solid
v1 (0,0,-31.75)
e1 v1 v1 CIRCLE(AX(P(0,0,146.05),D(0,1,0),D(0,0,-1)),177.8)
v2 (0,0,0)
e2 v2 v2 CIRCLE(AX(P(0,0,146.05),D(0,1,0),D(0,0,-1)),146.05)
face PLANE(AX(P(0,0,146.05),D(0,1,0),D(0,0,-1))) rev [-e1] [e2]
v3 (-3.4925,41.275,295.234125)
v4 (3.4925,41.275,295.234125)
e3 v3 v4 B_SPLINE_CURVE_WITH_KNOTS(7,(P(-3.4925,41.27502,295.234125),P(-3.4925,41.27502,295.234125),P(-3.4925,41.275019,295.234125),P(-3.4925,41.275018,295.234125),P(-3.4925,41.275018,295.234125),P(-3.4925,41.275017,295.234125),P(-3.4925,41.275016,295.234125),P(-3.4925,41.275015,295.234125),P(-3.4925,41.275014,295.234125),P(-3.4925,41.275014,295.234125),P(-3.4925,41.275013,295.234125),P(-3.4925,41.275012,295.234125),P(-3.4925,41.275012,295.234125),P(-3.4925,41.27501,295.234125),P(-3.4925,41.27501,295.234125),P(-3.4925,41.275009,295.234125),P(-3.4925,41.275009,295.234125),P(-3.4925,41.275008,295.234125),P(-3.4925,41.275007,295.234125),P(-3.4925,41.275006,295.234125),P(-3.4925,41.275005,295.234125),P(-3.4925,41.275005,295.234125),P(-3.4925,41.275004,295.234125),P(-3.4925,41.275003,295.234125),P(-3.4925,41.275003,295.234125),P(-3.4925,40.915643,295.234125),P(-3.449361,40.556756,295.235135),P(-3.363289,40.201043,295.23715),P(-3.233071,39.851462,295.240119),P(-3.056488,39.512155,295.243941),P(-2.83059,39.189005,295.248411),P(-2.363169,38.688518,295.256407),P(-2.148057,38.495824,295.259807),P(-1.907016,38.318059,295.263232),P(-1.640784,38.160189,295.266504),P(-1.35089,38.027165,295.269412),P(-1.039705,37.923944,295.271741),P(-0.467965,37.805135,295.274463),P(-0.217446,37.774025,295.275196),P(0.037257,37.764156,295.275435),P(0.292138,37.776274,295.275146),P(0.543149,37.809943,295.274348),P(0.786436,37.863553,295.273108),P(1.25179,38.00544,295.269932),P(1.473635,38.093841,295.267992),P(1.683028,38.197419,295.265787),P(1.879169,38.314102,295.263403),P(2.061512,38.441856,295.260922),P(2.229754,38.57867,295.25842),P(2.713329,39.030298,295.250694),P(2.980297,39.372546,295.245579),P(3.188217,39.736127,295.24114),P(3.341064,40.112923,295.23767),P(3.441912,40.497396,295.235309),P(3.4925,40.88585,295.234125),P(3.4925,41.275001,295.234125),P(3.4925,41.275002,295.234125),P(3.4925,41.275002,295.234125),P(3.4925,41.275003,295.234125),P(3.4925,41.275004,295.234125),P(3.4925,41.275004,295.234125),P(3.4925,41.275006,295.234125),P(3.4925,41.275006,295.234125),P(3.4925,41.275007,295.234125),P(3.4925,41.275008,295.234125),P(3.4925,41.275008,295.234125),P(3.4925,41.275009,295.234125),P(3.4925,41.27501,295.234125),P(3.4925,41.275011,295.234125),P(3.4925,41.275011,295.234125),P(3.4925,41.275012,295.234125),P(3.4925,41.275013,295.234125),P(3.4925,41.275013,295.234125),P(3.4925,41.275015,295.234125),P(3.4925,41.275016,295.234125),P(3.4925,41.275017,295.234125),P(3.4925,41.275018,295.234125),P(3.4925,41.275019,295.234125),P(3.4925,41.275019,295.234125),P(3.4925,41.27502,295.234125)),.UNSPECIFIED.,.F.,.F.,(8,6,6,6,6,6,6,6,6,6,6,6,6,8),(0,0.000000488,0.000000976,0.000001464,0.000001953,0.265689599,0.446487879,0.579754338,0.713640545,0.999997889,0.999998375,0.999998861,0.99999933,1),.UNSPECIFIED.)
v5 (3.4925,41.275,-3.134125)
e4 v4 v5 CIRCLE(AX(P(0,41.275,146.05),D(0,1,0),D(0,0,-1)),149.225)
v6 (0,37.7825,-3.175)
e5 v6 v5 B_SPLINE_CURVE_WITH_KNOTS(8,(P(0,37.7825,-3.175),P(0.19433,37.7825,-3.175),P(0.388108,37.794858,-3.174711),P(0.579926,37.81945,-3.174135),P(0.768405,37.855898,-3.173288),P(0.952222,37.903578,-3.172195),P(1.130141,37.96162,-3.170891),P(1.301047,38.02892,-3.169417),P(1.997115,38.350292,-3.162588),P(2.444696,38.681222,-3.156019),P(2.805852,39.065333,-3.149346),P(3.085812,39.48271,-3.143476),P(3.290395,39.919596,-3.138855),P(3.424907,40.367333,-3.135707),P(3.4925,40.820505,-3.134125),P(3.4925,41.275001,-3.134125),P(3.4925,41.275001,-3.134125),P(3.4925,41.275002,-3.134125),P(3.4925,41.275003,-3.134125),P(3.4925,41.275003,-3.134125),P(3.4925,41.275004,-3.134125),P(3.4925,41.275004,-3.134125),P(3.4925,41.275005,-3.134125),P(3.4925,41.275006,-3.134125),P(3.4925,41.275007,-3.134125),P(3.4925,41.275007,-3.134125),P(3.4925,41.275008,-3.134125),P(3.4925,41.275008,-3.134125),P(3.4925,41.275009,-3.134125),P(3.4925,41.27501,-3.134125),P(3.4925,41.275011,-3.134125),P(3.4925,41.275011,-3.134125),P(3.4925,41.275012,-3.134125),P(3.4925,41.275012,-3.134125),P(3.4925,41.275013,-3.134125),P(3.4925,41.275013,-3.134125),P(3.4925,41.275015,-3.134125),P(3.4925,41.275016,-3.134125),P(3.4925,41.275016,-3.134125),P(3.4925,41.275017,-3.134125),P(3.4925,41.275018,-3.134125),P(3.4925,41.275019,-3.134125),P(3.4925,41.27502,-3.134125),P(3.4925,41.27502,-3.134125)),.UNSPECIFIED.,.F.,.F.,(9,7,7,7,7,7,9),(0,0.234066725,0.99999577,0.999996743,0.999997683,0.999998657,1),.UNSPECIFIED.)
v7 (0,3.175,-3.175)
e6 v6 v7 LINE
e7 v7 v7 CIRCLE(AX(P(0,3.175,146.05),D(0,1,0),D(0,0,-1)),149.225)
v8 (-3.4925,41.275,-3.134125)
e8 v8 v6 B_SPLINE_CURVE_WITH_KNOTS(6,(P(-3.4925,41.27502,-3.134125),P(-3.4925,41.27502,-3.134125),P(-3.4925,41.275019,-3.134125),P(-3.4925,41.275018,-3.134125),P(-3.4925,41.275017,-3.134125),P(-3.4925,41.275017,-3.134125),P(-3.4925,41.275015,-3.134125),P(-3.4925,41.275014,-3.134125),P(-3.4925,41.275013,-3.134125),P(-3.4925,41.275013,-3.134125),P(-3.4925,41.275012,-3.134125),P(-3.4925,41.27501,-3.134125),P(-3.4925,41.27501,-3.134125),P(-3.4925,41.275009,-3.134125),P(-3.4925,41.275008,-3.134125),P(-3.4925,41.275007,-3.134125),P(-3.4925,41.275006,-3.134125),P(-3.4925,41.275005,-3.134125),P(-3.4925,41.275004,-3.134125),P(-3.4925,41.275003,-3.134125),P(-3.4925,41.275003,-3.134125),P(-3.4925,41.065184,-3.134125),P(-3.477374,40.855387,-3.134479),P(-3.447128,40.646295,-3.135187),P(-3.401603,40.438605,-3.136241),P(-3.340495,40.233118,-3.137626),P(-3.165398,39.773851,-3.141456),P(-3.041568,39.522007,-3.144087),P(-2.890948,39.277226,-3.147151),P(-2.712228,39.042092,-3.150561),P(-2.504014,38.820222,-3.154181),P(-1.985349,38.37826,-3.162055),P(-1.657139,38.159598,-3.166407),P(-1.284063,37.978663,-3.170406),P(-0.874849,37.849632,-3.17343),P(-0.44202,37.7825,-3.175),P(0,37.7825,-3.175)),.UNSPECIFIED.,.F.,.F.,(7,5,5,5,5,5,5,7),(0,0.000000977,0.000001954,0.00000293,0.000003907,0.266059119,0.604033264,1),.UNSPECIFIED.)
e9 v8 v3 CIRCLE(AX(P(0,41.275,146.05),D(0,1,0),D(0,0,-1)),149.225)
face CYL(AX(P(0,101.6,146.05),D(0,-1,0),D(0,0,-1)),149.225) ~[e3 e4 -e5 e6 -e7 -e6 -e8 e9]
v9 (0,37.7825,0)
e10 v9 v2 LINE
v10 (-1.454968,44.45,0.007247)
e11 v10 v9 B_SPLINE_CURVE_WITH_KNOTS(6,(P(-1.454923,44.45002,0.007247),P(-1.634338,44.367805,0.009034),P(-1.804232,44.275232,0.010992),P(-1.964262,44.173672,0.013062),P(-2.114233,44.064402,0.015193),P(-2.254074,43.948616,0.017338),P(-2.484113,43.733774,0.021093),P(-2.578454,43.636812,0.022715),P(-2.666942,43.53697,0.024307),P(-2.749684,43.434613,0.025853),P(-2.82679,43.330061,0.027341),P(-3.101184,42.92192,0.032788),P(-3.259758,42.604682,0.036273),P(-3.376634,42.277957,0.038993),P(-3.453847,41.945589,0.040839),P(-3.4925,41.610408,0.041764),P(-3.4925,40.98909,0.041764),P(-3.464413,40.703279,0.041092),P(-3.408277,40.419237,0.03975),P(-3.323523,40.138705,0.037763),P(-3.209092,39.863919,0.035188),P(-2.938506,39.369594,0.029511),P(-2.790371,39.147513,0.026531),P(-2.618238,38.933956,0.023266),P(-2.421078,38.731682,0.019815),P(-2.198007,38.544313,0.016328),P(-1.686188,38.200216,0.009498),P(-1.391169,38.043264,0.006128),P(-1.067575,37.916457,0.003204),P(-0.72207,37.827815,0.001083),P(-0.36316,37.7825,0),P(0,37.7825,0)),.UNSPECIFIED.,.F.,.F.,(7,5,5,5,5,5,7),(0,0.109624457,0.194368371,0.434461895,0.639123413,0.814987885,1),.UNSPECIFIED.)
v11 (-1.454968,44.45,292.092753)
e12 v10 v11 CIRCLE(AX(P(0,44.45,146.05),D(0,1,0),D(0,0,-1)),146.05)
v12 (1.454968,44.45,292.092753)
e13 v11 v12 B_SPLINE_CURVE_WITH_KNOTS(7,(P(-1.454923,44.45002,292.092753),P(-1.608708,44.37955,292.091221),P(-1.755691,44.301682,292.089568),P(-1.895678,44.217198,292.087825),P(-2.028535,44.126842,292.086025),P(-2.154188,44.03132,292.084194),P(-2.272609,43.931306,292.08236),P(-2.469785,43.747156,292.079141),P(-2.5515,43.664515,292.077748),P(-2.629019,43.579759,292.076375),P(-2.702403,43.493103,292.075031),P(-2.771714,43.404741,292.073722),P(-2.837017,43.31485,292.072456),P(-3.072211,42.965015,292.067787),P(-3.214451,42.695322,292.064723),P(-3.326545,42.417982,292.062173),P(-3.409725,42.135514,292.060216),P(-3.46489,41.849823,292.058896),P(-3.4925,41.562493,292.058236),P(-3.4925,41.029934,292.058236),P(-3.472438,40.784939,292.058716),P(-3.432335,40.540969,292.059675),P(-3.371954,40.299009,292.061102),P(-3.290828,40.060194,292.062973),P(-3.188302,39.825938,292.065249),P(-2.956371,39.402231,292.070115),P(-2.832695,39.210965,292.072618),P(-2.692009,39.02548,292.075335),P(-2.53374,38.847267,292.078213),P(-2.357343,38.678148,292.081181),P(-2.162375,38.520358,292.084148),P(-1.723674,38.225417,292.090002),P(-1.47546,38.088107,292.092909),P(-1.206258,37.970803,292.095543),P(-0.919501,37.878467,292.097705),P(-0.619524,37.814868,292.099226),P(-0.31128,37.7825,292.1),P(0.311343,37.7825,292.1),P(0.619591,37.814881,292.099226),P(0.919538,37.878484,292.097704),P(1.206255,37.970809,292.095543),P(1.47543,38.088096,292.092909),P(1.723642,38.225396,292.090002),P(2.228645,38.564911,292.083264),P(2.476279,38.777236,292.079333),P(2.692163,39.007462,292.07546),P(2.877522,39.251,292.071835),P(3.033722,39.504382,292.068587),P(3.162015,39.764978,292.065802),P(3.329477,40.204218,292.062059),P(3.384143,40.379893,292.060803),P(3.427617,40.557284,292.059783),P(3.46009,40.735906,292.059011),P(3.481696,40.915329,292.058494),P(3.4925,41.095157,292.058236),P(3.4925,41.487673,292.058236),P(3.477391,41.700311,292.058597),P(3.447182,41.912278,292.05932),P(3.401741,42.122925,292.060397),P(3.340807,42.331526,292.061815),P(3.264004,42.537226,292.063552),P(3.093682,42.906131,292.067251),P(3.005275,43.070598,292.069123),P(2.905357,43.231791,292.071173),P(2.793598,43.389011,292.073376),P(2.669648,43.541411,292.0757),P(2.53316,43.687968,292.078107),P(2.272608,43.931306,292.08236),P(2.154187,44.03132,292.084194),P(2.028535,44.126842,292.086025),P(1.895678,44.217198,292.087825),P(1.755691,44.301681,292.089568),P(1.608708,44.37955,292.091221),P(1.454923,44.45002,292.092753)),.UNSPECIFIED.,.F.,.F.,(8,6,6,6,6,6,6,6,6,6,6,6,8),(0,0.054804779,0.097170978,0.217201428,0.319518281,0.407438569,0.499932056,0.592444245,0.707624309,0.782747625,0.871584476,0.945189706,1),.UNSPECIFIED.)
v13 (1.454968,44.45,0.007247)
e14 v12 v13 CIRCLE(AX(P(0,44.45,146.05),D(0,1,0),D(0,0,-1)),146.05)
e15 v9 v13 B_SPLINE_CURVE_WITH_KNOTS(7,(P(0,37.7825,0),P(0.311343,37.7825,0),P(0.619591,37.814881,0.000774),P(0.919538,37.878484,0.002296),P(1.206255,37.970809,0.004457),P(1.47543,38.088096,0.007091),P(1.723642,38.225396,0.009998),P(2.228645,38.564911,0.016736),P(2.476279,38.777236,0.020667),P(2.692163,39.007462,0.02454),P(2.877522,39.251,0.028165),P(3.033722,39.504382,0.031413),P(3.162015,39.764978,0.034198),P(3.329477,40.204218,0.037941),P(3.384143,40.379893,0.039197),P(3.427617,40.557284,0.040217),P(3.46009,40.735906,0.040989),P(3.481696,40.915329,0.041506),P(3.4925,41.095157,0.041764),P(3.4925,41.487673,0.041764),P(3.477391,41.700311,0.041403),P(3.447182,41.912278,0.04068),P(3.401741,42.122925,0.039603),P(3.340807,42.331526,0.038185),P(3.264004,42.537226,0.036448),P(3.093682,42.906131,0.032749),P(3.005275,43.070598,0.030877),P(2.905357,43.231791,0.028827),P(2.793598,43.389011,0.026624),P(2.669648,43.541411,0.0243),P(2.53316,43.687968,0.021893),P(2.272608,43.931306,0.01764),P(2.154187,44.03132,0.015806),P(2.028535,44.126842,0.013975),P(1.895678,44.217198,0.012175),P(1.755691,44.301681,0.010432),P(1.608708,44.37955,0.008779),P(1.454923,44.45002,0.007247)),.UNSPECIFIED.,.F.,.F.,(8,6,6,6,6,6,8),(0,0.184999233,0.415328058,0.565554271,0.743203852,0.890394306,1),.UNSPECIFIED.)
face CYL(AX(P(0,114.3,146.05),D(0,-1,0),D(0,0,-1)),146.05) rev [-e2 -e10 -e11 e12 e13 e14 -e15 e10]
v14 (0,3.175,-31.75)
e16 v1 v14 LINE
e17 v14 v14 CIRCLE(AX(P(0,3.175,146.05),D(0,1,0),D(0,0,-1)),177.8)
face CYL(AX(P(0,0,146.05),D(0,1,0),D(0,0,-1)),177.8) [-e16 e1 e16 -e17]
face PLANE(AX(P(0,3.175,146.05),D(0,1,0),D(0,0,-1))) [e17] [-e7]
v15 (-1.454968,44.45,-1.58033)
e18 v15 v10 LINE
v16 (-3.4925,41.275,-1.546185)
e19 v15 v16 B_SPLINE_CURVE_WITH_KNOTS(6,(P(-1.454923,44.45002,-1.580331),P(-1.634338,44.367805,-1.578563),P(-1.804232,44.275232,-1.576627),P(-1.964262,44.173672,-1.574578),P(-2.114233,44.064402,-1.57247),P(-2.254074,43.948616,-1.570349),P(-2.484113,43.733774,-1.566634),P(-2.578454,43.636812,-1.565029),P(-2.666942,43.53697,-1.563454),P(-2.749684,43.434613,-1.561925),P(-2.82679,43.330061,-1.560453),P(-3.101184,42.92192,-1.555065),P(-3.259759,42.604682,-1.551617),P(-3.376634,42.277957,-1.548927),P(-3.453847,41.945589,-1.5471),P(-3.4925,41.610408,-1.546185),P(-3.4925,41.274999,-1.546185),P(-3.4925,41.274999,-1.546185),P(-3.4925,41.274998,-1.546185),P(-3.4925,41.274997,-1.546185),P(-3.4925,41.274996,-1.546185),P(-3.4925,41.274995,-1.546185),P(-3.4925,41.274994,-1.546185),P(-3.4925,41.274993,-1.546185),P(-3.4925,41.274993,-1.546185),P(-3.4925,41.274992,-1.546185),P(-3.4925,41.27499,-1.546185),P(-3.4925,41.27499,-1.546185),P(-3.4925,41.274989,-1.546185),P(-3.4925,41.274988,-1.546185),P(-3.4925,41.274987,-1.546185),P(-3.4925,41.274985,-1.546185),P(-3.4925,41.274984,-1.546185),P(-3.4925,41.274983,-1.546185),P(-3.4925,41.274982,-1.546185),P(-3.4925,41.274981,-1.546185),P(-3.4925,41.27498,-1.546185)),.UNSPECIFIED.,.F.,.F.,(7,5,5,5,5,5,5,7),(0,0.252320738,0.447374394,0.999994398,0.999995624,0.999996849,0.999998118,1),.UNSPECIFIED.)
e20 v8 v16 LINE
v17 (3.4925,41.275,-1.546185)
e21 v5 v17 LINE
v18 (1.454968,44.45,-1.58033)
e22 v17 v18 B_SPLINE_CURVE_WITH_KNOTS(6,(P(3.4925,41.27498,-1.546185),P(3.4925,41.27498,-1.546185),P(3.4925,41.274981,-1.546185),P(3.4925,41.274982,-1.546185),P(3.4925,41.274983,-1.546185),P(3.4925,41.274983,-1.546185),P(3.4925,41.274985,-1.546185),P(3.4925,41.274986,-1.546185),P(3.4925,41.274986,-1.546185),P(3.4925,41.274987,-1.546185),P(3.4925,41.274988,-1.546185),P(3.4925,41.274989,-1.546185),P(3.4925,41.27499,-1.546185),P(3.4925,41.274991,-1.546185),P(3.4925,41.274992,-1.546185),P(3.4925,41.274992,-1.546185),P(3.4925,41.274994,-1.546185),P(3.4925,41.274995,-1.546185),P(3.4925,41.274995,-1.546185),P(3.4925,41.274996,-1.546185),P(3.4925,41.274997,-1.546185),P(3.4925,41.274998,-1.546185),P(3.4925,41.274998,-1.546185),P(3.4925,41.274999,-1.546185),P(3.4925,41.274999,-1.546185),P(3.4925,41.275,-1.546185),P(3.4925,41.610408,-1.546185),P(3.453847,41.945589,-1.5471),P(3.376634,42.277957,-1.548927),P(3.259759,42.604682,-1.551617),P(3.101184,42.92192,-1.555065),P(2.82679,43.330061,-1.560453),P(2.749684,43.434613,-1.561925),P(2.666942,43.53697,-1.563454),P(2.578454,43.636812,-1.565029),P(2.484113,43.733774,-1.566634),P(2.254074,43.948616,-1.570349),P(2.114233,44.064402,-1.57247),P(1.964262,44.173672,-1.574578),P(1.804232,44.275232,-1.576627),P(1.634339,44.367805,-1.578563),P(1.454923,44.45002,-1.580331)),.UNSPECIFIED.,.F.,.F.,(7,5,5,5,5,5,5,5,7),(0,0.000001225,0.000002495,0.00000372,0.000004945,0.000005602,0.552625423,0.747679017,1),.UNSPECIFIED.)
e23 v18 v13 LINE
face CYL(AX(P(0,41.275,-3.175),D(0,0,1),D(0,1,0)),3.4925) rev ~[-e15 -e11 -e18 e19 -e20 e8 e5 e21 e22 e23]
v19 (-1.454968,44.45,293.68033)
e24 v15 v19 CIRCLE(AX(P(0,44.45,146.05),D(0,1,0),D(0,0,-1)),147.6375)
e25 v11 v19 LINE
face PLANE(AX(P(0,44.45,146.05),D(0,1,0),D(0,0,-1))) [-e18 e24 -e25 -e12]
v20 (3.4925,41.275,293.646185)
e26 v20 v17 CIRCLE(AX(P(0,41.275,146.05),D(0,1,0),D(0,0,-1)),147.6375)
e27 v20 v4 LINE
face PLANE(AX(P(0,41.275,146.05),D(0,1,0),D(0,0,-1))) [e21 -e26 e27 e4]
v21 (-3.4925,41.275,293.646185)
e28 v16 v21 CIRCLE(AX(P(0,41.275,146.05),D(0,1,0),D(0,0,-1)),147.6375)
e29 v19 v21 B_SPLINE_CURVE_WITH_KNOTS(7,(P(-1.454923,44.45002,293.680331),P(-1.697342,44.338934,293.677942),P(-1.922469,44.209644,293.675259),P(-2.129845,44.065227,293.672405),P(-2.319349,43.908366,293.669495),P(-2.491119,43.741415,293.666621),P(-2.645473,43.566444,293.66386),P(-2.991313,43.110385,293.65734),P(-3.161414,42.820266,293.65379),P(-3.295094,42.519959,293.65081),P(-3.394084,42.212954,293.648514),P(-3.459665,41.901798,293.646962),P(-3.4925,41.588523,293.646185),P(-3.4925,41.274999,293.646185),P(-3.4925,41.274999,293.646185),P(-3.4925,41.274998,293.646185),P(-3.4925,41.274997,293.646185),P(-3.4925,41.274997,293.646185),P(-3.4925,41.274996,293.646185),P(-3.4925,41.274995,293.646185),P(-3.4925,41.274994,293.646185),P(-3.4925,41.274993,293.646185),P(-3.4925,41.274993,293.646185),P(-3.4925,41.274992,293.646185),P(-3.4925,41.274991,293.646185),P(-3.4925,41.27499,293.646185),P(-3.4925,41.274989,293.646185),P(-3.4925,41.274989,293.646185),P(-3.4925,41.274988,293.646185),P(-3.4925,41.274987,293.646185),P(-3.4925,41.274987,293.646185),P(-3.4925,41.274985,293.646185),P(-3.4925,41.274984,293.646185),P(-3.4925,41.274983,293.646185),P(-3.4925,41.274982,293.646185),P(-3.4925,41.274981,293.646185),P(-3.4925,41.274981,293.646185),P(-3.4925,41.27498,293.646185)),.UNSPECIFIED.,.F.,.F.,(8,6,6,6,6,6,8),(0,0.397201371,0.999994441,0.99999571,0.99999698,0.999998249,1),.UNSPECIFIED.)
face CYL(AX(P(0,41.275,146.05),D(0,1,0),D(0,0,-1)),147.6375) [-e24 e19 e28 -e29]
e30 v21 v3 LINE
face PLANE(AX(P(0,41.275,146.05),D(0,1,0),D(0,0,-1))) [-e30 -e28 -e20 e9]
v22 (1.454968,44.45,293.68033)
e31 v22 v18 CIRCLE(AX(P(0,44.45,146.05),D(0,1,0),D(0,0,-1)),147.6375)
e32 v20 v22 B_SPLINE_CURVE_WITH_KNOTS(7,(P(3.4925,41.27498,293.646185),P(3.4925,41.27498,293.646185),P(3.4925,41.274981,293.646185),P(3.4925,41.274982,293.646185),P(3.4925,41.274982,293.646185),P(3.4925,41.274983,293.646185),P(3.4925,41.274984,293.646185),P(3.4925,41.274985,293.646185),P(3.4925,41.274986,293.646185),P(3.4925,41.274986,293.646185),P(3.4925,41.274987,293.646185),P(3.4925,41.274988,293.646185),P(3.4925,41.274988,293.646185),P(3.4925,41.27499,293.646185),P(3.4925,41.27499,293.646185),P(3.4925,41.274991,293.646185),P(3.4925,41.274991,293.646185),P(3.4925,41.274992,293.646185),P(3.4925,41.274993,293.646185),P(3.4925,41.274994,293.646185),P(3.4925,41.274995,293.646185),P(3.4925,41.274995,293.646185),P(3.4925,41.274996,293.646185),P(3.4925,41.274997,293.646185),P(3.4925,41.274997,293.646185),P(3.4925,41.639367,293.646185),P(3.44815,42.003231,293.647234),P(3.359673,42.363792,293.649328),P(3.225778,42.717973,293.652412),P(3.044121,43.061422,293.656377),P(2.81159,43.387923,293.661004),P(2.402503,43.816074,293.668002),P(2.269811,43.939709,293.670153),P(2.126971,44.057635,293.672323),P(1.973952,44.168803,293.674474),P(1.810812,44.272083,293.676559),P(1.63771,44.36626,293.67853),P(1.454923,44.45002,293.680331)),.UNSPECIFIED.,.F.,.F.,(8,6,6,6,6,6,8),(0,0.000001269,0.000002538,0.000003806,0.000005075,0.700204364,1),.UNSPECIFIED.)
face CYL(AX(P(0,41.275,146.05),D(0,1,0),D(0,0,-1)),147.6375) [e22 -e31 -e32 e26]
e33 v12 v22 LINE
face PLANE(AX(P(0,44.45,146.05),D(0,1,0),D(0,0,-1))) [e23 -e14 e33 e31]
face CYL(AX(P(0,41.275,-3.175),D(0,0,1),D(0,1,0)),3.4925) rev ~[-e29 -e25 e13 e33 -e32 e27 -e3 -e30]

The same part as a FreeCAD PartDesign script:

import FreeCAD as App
import Part
import Sketcher
Q = App.Units.Quantity


def add_polygon(sketch, points):
    """Adds a closed chain of lines whose ends are joined by coincident constraints."""
    first, n = sketch.GeometryCount, len(points)
    for a, b in zip(points, points[1:] + points[:1]):
        sketch.addGeometry(Part.LineSegment(App.Vector(*a, 0), App.Vector(*b, 0)), False)
    for i in range(n):
        sketch.addConstraint(Sketcher.Constraint("Coincident", first + i, 2, first + (i + 1) % n, 1))

doc = App.newDocument("Part")
body = doc.addObject("PartDesign::Body", "Body")

# Sketch on YZ plane
sketch1 = body.newObject("Sketcher::SketchObject", "Sketch")
sketch1.AttachmentSupport = (doc.getObject("YZ_Plane"), [""])
sketch1.MapMode = "FlatFace"
add_polygon(sketch1, [(44.5, 0), (0, 0), (0, -31.8), (3.2, -31.8), (3.2, -3.2), (41.3, -3.2), (41.3, -1.6), (44.5, -1.6)])  # lines 0-7
sketch1.addGeometry(Part.LineSegment(App.Vector(0, 146.1, 0), App.Vector(44.5, 146.1, 0)), True)  # axis
sketch1.addConstraint([
    Sketcher.Constraint("Horizontal", 0),
    Sketcher.Constraint("Vertical", 1),
    Sketcher.Constraint("Horizontal", 2),
    Sketcher.Constraint("Vertical", 3),
    Sketcher.Constraint("Horizontal", 4),
    Sketcher.Constraint("Vertical", 5),
    Sketcher.Constraint("Horizontal", 6),
    Sketcher.Constraint("Vertical", 7),
    Sketcher.Constraint("Horizontal", 8),
    Sketcher.Constraint("Coincident", 0, 2, -1, 1),
    Sketcher.Constraint("PointOnObject", 8, 1, -2),
    Sketcher.Constraint("Vertical", 7, 2, 8, 2),
    Sketcher.Constraint("Equal", 2, 6),
    Sketcher.Constraint("Equal", 5, 7),
    Sketcher.Constraint("DistanceY", 1, 2, 1, 1, Q("1.25 in")),
    Sketcher.Constraint("DistanceX", 2, 1, 2, 2, Q("0.125 in")),
    Sketcher.Constraint("DistanceY", 3, 1, 3, 2, Q("1.125 in")),
    Sketcher.Constraint("DistanceY", -1, 1, 8, 1, Q("5.75 in")),
    Sketcher.Constraint("DistanceX", 4, 1, 4, 2, Q("1.5 in")),
])
revolution = body.newObject("PartDesign::Revolution", "Revolution")
revolution.Profile = sketch1
revolution.ReferenceAxis = (sketch1, ["Axis0"])
revolution.Angle = 360

# Sketch on XY plane
sketch2 = body.newObject("Sketcher::SketchObject", "Sketch001")
sketch2.AttachmentSupport = (doc.getObject("XY_Plane"), [""])
sketch2.MapMode = "FlatFace"
sketch2.AttachmentOffset = App.Placement(App.Vector(0, 0, -0.125 * 25.4), App.Rotation())
sketch2.addGeometry(Part.Circle(App.Vector(0, 41.3, 0), App.Vector(0, 0, 1), 3.5), False)
sketch2.addConstraint([
    Sketcher.Constraint("PointOnObject", 0, 3, -2),
    Sketcher.Constraint("Diameter", 0, Q("0.275 in")),
    Sketcher.Constraint("DistanceY", -1, 1, 0, 3, Q("1.625 in")),
])
doc.recompute()
hole = body.newObject("PartDesign::Hole", "Hole")
hole.Profile = sketch2
hole.ThreadType = "None"
hole.Diameter = Q("0.275 in")
hole.DepthType = "ThroughAll"
hole.Reversed = True

doc.recompute()
